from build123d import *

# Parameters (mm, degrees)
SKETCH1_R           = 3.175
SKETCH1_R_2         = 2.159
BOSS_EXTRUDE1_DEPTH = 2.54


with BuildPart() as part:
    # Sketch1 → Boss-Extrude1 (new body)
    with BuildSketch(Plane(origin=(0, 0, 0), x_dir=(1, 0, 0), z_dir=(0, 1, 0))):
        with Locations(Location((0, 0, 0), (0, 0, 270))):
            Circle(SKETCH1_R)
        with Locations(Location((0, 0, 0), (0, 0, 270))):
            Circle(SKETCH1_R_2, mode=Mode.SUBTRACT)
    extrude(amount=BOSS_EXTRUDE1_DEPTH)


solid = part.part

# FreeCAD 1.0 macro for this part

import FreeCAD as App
import Part
import Sketcher
Q = App.Units.Quantity

doc = App.newDocument("Part")
body = doc.addObject("PartDesign::Body", "Body")

# Sketch on XZ plane
sketch1 = doc.addObject("Sketcher::SketchObject", "Sketch")
body.addObject(sketch1)
sketch1.AttachmentSupport = (doc.XZ_Plane, [""])
sketch1.MapMode = "FlatFace"
sketch1.addGeometry([
    Part.Circle(App.Vector(0, 0, 0), App.Vector(0, 0, 1), 3.2),
    Part.Circle(App.Vector(0, 0, 0), App.Vector(0, 0, 1), 2.2),
], False)
sketch1.addConstraint([
    Sketcher.Constraint("Coincident", 0, 3, -1, 1),
    Sketcher.Constraint("Coincident", 1, 3, -1, 1),
    Sketcher.Constraint("Diameter", 0, Q("0.25 in")),
    Sketcher.Constraint("Diameter", 1, Q("0.17 in")),
])
pad1 = doc.addObject("PartDesign::Pad", "Pad")
body.addObject(pad1)
pad1.Profile = sketch1
pad1.Length = Q("0.1 in")
pad1.Reversed = True

doc.recompute()
